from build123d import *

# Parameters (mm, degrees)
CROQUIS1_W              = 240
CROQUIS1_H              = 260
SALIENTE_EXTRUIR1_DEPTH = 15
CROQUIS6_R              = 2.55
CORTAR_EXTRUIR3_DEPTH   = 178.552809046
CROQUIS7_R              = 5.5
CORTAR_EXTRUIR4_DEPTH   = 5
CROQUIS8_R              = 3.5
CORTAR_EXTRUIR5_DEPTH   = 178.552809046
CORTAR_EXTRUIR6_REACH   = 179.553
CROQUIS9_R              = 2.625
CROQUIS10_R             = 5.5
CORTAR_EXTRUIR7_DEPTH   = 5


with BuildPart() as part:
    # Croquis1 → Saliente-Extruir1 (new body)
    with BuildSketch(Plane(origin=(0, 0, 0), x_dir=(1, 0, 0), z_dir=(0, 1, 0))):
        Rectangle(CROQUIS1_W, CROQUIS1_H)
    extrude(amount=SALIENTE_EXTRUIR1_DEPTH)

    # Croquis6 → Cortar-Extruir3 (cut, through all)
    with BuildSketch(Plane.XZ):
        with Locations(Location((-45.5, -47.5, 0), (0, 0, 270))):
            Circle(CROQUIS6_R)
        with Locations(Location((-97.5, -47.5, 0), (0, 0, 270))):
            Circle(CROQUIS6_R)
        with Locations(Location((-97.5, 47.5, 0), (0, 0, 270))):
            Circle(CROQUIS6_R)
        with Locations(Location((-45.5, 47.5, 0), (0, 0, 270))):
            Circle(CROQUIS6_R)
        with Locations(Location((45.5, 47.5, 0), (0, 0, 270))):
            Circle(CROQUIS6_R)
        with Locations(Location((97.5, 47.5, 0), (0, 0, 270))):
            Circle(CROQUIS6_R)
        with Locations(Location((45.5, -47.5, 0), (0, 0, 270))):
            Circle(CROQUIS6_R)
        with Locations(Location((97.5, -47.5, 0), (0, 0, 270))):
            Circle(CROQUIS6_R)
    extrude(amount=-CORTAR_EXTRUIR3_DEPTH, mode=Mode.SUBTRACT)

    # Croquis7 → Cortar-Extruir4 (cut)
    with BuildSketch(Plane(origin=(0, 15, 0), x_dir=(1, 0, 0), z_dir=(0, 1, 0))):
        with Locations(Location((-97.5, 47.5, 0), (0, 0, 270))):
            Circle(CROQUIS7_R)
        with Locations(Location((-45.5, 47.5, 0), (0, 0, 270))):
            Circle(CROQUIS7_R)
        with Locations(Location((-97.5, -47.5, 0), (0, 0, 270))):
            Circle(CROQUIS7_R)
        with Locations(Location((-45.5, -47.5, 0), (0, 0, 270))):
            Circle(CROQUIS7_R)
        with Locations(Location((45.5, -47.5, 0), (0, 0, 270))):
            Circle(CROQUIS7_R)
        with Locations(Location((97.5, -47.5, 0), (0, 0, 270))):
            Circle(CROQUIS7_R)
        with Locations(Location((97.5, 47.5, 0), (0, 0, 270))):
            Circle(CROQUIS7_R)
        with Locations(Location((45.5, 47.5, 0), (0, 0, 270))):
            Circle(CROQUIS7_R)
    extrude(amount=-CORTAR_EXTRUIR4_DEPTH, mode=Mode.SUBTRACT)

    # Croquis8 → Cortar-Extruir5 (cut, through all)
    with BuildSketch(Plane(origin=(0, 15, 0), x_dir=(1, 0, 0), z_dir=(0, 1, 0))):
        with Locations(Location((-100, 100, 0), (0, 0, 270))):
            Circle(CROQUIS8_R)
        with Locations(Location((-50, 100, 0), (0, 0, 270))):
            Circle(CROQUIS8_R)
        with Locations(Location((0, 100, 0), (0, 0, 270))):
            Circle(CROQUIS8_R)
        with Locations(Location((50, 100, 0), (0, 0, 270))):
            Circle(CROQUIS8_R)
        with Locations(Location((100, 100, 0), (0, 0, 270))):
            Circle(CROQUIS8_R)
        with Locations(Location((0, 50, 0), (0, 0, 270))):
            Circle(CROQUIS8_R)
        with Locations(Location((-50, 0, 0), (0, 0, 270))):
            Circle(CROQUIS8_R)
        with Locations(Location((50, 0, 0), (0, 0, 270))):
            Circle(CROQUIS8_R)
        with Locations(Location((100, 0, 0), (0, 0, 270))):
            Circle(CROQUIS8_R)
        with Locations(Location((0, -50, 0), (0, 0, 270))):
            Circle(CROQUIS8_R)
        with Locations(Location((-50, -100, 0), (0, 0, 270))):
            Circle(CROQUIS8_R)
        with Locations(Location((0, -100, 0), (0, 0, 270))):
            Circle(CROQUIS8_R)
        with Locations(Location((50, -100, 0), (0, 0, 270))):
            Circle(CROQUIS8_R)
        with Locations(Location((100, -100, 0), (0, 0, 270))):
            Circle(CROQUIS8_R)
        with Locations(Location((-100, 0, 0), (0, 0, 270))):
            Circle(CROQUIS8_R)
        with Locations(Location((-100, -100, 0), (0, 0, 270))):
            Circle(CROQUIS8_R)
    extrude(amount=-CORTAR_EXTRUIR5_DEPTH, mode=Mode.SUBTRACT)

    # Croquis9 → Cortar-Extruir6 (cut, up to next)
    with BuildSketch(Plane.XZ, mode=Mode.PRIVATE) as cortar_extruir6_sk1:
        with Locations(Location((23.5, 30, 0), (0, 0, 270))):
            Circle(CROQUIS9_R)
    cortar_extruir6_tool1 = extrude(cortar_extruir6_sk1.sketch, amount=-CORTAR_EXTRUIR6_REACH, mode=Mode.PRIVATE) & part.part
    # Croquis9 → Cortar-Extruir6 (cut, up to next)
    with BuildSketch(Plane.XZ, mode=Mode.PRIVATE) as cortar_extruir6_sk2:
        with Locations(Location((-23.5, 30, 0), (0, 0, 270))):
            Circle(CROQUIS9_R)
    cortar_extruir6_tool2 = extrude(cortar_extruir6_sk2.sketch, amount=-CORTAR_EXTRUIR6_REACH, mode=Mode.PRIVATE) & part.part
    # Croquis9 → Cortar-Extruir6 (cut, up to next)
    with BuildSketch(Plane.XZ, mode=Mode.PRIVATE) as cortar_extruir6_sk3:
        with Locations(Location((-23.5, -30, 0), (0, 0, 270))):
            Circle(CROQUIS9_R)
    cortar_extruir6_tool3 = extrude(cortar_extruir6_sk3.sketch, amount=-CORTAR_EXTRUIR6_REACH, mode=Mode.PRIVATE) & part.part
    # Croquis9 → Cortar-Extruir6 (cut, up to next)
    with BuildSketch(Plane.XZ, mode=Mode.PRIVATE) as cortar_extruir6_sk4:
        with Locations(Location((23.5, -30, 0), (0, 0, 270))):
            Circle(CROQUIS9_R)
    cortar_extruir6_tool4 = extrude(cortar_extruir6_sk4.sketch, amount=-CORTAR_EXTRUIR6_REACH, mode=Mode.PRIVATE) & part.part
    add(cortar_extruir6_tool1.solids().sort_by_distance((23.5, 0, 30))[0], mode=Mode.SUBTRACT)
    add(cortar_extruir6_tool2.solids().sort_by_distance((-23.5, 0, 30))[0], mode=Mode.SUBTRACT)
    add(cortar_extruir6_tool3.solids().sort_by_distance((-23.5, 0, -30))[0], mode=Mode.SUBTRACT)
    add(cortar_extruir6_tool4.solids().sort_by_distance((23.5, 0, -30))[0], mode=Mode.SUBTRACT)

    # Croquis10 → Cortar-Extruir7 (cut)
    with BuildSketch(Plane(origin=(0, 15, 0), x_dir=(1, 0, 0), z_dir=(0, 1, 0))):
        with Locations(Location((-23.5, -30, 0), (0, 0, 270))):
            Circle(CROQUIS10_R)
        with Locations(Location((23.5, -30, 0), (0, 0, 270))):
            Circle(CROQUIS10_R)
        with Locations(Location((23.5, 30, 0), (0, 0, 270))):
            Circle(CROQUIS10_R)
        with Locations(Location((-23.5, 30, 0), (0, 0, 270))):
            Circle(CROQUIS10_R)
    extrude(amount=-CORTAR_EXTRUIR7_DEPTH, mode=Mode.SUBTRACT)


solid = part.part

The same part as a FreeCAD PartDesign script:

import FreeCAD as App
import Part
import Sketcher

V = App.Vector
Q = App.Units.Quantity

doc = App.newDocument("Part")
body = doc.addObject("PartDesign::Body", "Body")

# Sketch on XZ plane
sketch1 = body.newObject("Sketcher::SketchObject", "Sketch")
sketch1.AttachmentSupport = (doc.getObject("XZ_Plane"), [""])
sketch1.MapMode = "FlatFace"
sketch1.addGeometry([
    Part.LineSegment(V(-120, -130, 0), V(-120, 130, 0)),
    Part.LineSegment(V(-120, 130, 0), V(120, 130, 0)),
    Part.LineSegment(V(120, 130, 0), V(120, -130, 0)),
    Part.LineSegment(V(120, -130, 0), V(-120, -130, 0)),
], False)
sketch1.addConstraint([
    Sketcher.Constraint("Coincident", 0, 2, 1, 1),
    Sketcher.Constraint("Coincident", 1, 2, 2, 1),
    Sketcher.Constraint("Coincident", 2, 2, 3, 1),
    Sketcher.Constraint("Coincident", 3, 2, 0, 1),
    Sketcher.Constraint("Vertical", 0),
    Sketcher.Constraint("Horizontal", 1),
    Sketcher.Constraint("Vertical", 2),
    Sketcher.Constraint("Horizontal", 3),
    Sketcher.Constraint("Symmetric", 0, 2, 2, 2, -1, 1),
    Sketcher.Constraint("DistanceX", 1, 1, 1, 2, Q("240 mm")),
    Sketcher.Constraint("DistanceY", 0, 1, 0, 2, Q("260 mm")),
])
pad1 = body.newObject("PartDesign::Pad", "Pad")
pad1.Profile = sketch1
pad1.Length = 15
pad1.Reversed = True

# Sketch on XZ plane
sketch2 = body.newObject("Sketcher::SketchObject", "Sketch001")
sketch2.AttachmentSupport = (doc.getObject("XZ_Plane"), [""])
sketch2.MapMode = "FlatFace"
sketch2.addGeometry([
    Part.Circle(V(-45.5, -47.5, 0), V(0, 0, 1), 2.55),  # 0
    Part.Circle(V(-97.5, -47.5, 0), V(0, 0, 1), 2.55),  # 1
    Part.Circle(V(-97.5, 47.5, 0), V(0, 0, 1), 2.55),  # 2
    Part.Circle(V(-45.5, 47.5, 0), V(0, 0, 1), 2.55),  # 3
    Part.Circle(V(45.5, 47.5, 0), V(0, 0, 1), 2.55),  # 4
    Part.Circle(V(97.5, 47.5, 0), V(0, 0, 1), 2.55),  # 5
    Part.Circle(V(45.5, -47.5, 0), V(0, 0, 1), 2.55),  # 6
    Part.Circle(V(97.5, -47.5, 0), V(0, 0, 1), 2.55),  # 7
], False)
sketch2.addConstraint([
    Sketcher.Constraint("Equal", 0, 1),
    Sketcher.Constraint("Equal", 1, 2),
    Sketcher.Constraint("Equal", 2, 3),
    Sketcher.Constraint("Equal", 3, 4),
    Sketcher.Constraint("Equal", 4, 5),
    Sketcher.Constraint("Equal", 5, 6),
    Sketcher.Constraint("Equal", 6, 7),
    Sketcher.Constraint("Symmetric", 0, 3, 4, 3, -1, 1),
    Sketcher.Constraint("Symmetric", 1, 3, 5, 3, -1, 1),
    Sketcher.Constraint("Symmetric", 3, 3, 6, 3, -1, 1),
    Sketcher.Constraint("Symmetric", 2, 3, 7, 3, -1, 1),
    Sketcher.Constraint("Symmetric", 3, 3, 4, 3, -2),
    Sketcher.Constraint("Symmetric", 2, 3, 5, 3, -2),
    Sketcher.Constraint("Horizontal", 0, 3, 1, 3),
    Sketcher.Constraint("Diameter", 0, Q("5.1 mm")),
    Sketcher.Constraint("DistanceX", 1, 3, 0, 3, Q("52 mm")),
    Sketcher.Constraint("DistanceY", 1, 3, 2, 3, Q("95 mm")),
    Sketcher.Constraint("DistanceX", 3, 3, 4, 3, Q("91 mm")),
])
pocket1 = body.newObject("PartDesign::Pocket", "Pocket")
pocket1.Profile = sketch2
pocket1.Type = "ThroughAll"

# Sketch on XZ plane
sketch3 = body.newObject("Sketcher::SketchObject", "Sketch002")
sketch3.AttachmentSupport = (doc.getObject("XZ_Plane"), [""])
sketch3.MapMode = "FlatFace"
sketch3.AttachmentOffset = App.Placement(V(0, 0, -15), App.Rotation())
sketch3.addGeometry([
    Part.Circle(V(-97.5, -47.5, 0), V(0, 0, 1), 5.5),  # 0
    Part.Circle(V(-45.5, -47.5, 0), V(0, 0, 1), 5.5),  # 1
    Part.Circle(V(-97.5, 47.5, 0), V(0, 0, 1), 5.5),  # 2
    Part.Circle(V(-45.5, 47.5, 0), V(0, 0, 1), 5.5),  # 3
    Part.Circle(V(45.5, 47.5, 0), V(0, 0, 1), 5.5),  # 4
    Part.Circle(V(97.5, 47.5, 0), V(0, 0, 1), 5.5),  # 5
    Part.Circle(V(97.5, -47.5, 0), V(0, 0, 1), 5.5),  # 6
    Part.Circle(V(45.5, -47.5, 0), V(0, 0, 1), 5.5),  # 7
], False)
sketch3.addConstraint([
    Sketcher.Constraint("Equal", 0, 1),
    Sketcher.Constraint("Equal", 1, 2),
    Sketcher.Constraint("Equal", 2, 3),
    Sketcher.Constraint("Equal", 3, 4),
    Sketcher.Constraint("Equal", 4, 5),
    Sketcher.Constraint("Equal", 5, 6),
    Sketcher.Constraint("Equal", 6, 7),
    Sketcher.Constraint("Symmetric", 1, 3, 4, 3, -1, 1),
    Sketcher.Constraint("Symmetric", 0, 3, 5, 3, -1, 1),
    Sketcher.Constraint("Symmetric", 2, 3, 6, 3, -1, 1),
    Sketcher.Constraint("Symmetric", 3, 3, 7, 3, -1, 1),
    Sketcher.Constraint("Symmetric", 3, 3, 4, 3, -2),
    Sketcher.Constraint("Symmetric", 2, 3, 5, 3, -2),
    Sketcher.Constraint("Horizontal", 0, 3, 1, 3),
    Sketcher.Constraint("Diameter", 0, Q("11 mm")),
    Sketcher.Constraint("DistanceX", 0, 3, 1, 3, Q("52 mm")),
    Sketcher.Constraint("DistanceY", 0, 3, 2, 3, Q("95 mm")),
    Sketcher.Constraint("DistanceX", 3, 3, 4, 3, Q("91 mm")),
])
pocket2 = body.newObject("PartDesign::Pocket", "Pocket001")
pocket2.Profile = sketch3
pocket2.Length = 5
pocket2.Reversed = True

# Sketch on XZ plane
sketch4 = body.newObject("Sketcher::SketchObject", "Sketch003")
sketch4.AttachmentSupport = (doc.getObject("XZ_Plane"), [""])
sketch4.MapMode = "FlatFace"
sketch4.AttachmentOffset = App.Placement(V(0, 0, -15), App.Rotation())
sketch4.addGeometry([
    Part.Circle(V(-100, -100, 0), V(0, 0, 1), 3.5),  # 0
    Part.Circle(V(-50, -100, 0), V(0, 0, 1), 3.5),  # 1
    Part.Circle(V(0, -100, 0), V(0, 0, 1), 3.5),  # 2
    Part.Circle(V(50, -100, 0), V(0, 0, 1), 3.5),  # 3
    Part.Circle(V(100, -100, 0), V(0, 0, 1), 3.5),  # 4
    Part.Circle(V(0, -50, 0), V(0, 0, 1), 3.5),  # 5
    Part.Circle(V(-50, 0, 0), V(0, 0, 1), 3.5),  # 6
    Part.Circle(V(50, 0, 0), V(0, 0, 1), 3.5),  # 7
    Part.Circle(V(100, 0, 0), V(0, 0, 1), 3.5),  # 8
    Part.Circle(V(0, 50, 0), V(0, 0, 1), 3.5),  # 9
    Part.Circle(V(-50, 100, 0), V(0, 0, 1), 3.5),  # 10
    Part.Circle(V(0, 100, 0), V(0, 0, 1), 3.5),  # 11
    Part.Circle(V(50, 100, 0), V(0, 0, 1), 3.5),  # 12
    Part.Circle(V(100, 100, 0), V(0, 0, 1), 3.5),  # 13
    Part.Circle(V(-100, 0, 0), V(0, 0, 1), 3.5),  # 14
    Part.Circle(V(-100, 100, 0), V(0, 0, 1), 3.5),  # 15
], False)
sketch4.addConstraint([
    Sketcher.Constraint("Equal", 0, 1),
    Sketcher.Constraint("Equal", 1, 2),
    Sketcher.Constraint("Equal", 2, 3),
    Sketcher.Constraint("Equal", 3, 4),
    Sketcher.Constraint("Equal", 4, 5),
    Sketcher.Constraint("Equal", 5, 6),
    Sketcher.Constraint("Equal", 6, 7),
    Sketcher.Constraint("Equal", 7, 8),
    Sketcher.Constraint("Equal", 8, 9),
    Sketcher.Constraint("Equal", 9, 10),
    Sketcher.Constraint("Equal", 10, 11),
    Sketcher.Constraint("Equal", 11, 12),
    Sketcher.Constraint("Equal", 12, 13),
    Sketcher.Constraint("Equal", 13, 14),
    Sketcher.Constraint("Equal", 14, 15),
    Sketcher.Constraint("Symmetric", 6, 3, 7, 3, -1, 1),
    Sketcher.Constraint("Symmetric", 5, 3, 9, 3, -1, 1),
    Sketcher.Constraint("Symmetric", 3, 3, 10, 3, -1, 1),
    Sketcher.Constraint("Symmetric", 2, 3, 11, 3, -1, 1),
    Sketcher.Constraint("Symmetric", 1, 3, 12, 3, -1, 1),
    Sketcher.Constraint("Symmetric", 0, 3, 13, 3, -1, 1),
    Sketcher.Constraint("Symmetric", 8, 3, 14, 3, -1, 1),
    Sketcher.Constraint("Symmetric", 4, 3, 15, 3, -1, 1),
    Sketcher.Constraint("Symmetric", 1, 3, 3, 3, -2),
    Sketcher.Constraint("Symmetric", 0, 3, 4, 3, -2),
    Sketcher.Constraint("PointOnObject", 2, 3, -2),
    Sketcher.Constraint("PointOnObject", 5, 3, -2),
    Sketcher.Constraint("PointOnObject", 6, 3, -1),
    Sketcher.Constraint("PointOnObject", 8, 3, -1),
    Sketcher.Constraint("Horizontal", 0, 3, 1, 3),
    Sketcher.Constraint("Horizontal", 1, 3, 2, 3),
    Sketcher.Constraint("Vertical", 1, 3, 6, 3),
    Sketcher.Constraint("Vertical", 4, 3, 8, 3),
    Sketcher.Constraint("Diameter", 0, Q("7 mm")),
    Sketcher.Constraint("DistanceX", 0, 3, -1, 1, Q("100 mm")),
    Sketcher.Constraint("DistanceY", 0, 3, -1, 1, Q("100 mm")),
    Sketcher.Constraint("DistanceX", 1, 3, -1, 1, Q("50 mm")),
    Sketcher.Constraint("DistanceY", 5, 3, -1, 1, Q("50 mm")),
])
pocket3 = body.newObject("PartDesign::Pocket", "Pocket002")
pocket3.Profile = sketch4
pocket3.Type = "ThroughAll"
pocket3.Reversed = True

# Sketch on XZ plane
sketch5 = body.newObject("Sketcher::SketchObject", "Sketch004")
sketch5.AttachmentSupport = (doc.getObject("XZ_Plane"), [""])
sketch5.MapMode = "FlatFace"
sketch5.addGeometry(Part.Circle(V(23.5, 30, 0), V(0, 0, 1), 2.625), False)
sketch5.addConstraint([
    Sketcher.Constraint("Diameter", 0, Q("5.25 mm")),
    Sketcher.Constraint("DistanceY", -1, 1, 0, 3, Q("30 mm")),
    Sketcher.Constraint("DistanceX", -1, 1, 0, 3, Q("23.5 mm")),
])
pocket4 = body.newObject("PartDesign::Pocket", "Pocket003")
pocket4.Profile = sketch5
pocket4.Type = "UpToFirst"

# Sketch on XZ plane
sketch6 = body.newObject("Sketcher::SketchObject", "Sketch005")
sketch6.AttachmentSupport = (doc.getObject("XZ_Plane"), [""])
sketch6.MapMode = "FlatFace"
sketch6.addGeometry(Part.Circle(V(-23.5, 30, 0), V(0, 0, 1), 2.625), False)
sketch6.addConstraint([
    Sketcher.Constraint("Diameter", 0, Q("5.25 mm")),
    Sketcher.Constraint("DistanceY", -1, 1, 0, 3, Q("30 mm")),
    Sketcher.Constraint("DistanceX", 0, 3, -1, 1, Q("23.5 mm")),
])
pocket5 = body.newObject("PartDesign::Pocket", "Pocket004")
pocket5.Profile = sketch6
pocket5.Type = "UpToFirst"

# Sketch on XZ plane
sketch7 = body.newObject("Sketcher::SketchObject", "Sketch006")
sketch7.AttachmentSupport = (doc.getObject("XZ_Plane"), [""])
sketch7.MapMode = "FlatFace"
sketch7.addGeometry(Part.Circle(V(-23.5, -30, 0), V(0, 0, 1), 2.625), False)
sketch7.addConstraint([
    Sketcher.Constraint("Diameter", 0, Q("5.25 mm")),
    Sketcher.Constraint("DistanceY", 0, 3, -1, 1, Q("30 mm")),
    Sketcher.Constraint("DistanceX", 0, 3, -1, 1, Q("23.5 mm")),
])
pocket6 = body.newObject("PartDesign::Pocket", "Pocket005")
pocket6.Profile = sketch7
pocket6.Type = "UpToFirst"

# Sketch on XZ plane
sketch8 = body.newObject("Sketcher::SketchObject", "Sketch007")
sketch8.AttachmentSupport = (doc.getObject("XZ_Plane"), [""])
sketch8.MapMode = "FlatFace"
sketch8.addGeometry(Part.Circle(V(23.5, -30, 0), V(0, 0, 1), 2.625), False)
sketch8.addConstraint([
    Sketcher.Constraint("Diameter", 0, Q("5.25 mm")),
    Sketcher.Constraint("DistanceY", 0, 3, -1, 1, Q("30 mm")),
    Sketcher.Constraint("DistanceX", -1, 1, 0, 3, Q("23.5 mm")),
])
pocket7 = body.newObject("PartDesign::Pocket", "Pocket006")
pocket7.Profile = sketch8
pocket7.Type = "UpToFirst"

# Sketch on XZ plane
sketch9 = body.newObject("Sketcher::SketchObject", "Sketch008")
sketch9.AttachmentSupport = (doc.getObject("XZ_Plane"), [""])
sketch9.MapMode = "FlatFace"
sketch9.AttachmentOffset = App.Placement(V(0, 0, -15), App.Rotation())
sketch9.addGeometry([
    Part.Circle(V(-23.5, 30, 0), V(0, 0, 1), 5.5),
    Part.Circle(V(23.5, 30, 0), V(0, 0, 1), 5.5),
    Part.Circle(V(23.5, -30, 0), V(0, 0, 1), 5.5),
    Part.Circle(V(-23.5, -30, 0), V(0, 0, 1), 5.5),
], False)
sketch9.addConstraint([
    Sketcher.Constraint("Equal", 0, 1),
    Sketcher.Constraint("Equal", 1, 2),
    Sketcher.Constraint("Equal", 2, 3),
    Sketcher.Constraint("Symmetric", 0, 3, 2, 3, -1, 1),
    Sketcher.Constraint("Symmetric", 1, 3, 3, 3, -1, 1),
    Sketcher.Constraint("Symmetric", 0, 3, 1, 3, -2),
    Sketcher.Constraint("Diameter", 0, Q("11 mm")),
    Sketcher.Constraint("DistanceY", -1, 1, 0, 3, Q("30 mm")),
    Sketcher.Constraint("DistanceX", 0, 3, 1, 3, Q("47 mm")),
])
pocket8 = body.newObject("PartDesign::Pocket", "Pocket007")
pocket8.Profile = sketch9
pocket8.Length = 5
pocket8.Reversed = True

doc.recompute()
